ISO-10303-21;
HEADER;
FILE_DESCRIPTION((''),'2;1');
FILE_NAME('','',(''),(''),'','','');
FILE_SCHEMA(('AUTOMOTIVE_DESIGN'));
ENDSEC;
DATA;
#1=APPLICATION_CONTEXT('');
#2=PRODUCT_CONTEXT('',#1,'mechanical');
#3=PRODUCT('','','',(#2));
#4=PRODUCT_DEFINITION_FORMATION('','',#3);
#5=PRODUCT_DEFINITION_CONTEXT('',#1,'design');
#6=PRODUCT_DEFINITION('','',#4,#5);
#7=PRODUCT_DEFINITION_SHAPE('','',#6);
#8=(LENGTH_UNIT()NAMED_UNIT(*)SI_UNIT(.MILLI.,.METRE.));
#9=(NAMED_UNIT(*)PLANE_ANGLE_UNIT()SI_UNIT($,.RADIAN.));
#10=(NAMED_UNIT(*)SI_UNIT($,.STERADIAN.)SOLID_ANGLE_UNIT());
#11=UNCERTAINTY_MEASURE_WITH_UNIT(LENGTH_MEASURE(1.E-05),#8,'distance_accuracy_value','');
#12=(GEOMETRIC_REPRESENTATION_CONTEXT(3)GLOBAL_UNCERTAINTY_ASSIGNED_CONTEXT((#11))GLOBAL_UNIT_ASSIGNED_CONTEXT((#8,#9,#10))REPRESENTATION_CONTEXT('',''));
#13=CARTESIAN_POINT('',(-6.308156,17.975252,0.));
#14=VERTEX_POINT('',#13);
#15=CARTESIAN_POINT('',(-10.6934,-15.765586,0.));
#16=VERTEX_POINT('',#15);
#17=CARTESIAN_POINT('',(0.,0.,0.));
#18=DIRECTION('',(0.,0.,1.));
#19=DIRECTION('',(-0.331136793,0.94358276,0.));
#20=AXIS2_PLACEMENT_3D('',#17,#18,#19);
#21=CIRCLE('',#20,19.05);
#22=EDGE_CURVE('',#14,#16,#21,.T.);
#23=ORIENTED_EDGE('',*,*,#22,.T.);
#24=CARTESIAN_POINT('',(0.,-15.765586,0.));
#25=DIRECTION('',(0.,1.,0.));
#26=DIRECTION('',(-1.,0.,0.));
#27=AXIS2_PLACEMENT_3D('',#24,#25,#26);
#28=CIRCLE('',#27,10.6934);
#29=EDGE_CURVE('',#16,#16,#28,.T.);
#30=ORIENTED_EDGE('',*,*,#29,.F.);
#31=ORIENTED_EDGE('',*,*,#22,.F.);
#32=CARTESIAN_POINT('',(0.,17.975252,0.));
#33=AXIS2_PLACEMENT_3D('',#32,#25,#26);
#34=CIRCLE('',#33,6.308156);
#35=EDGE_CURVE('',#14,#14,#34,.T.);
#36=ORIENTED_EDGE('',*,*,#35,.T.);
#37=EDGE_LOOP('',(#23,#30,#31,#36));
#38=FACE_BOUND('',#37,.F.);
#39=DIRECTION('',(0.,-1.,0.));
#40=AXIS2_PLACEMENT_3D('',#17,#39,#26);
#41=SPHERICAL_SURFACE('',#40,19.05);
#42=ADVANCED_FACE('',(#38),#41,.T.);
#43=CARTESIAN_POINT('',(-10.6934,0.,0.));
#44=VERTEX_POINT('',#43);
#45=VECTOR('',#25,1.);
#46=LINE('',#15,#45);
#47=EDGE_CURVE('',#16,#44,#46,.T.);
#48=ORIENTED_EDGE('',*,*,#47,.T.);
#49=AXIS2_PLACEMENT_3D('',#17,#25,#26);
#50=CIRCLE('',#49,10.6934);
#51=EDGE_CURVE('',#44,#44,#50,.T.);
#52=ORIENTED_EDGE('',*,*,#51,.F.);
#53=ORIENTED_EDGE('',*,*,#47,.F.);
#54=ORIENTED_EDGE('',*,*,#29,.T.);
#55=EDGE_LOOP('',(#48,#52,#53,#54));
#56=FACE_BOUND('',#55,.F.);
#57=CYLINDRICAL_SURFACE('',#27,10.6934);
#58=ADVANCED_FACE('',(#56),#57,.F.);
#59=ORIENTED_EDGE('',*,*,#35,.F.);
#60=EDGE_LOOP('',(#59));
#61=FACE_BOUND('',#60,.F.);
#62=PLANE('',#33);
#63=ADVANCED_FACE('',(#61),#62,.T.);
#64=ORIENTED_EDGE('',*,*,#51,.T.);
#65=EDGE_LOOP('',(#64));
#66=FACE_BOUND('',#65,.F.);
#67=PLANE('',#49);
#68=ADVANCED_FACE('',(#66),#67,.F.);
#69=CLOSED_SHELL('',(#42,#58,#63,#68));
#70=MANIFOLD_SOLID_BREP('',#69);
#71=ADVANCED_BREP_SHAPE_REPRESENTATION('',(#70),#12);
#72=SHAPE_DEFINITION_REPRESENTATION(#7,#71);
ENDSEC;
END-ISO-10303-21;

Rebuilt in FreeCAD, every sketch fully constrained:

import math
import FreeCAD as App
import Part
import Sketcher
Q = App.Units.Quantity

doc = App.newDocument("Part")
body = doc.addObject("PartDesign::Body", "Body")

sketch1 = doc.addObject("Sketcher::SketchObject", "Sketch")
body.addObject(sketch1)
sketch1.AttachmentSupport = (doc.XY_Plane, [""])
sketch1.MapMode = "FlatFace"
sketch1.addGeometry([
    Part.ArcOfCircle(Part.Circle(App.Vector(0, 0, 0), App.Vector(0, 0, 1), 19), math.radians(109), math.radians(236)),
    Part.LineSegment(App.Vector(-11, -16, 0), App.Vector(-11, 0, 0)),
    Part.LineSegment(App.Vector(-11, 0, 0), App.Vector(0, 0, 0)),
    Part.LineSegment(App.Vector(0, 0, 0), App.Vector(0, 18, 0)),
    Part.LineSegment(App.Vector(0, 18, 0), App.Vector(-6, 18, 0)),
], False)
sketch1.addConstraint([
    Sketcher.Constraint("Coincident", 0, 2, 1, 1),
    Sketcher.Constraint("Coincident", 1, 2, 2, 1),
    Sketcher.Constraint("Coincident", 2, 2, 3, 1),
    Sketcher.Constraint("Coincident", 3, 2, 4, 1),
    Sketcher.Constraint("Coincident", 4, 2, 0, 1),
    Sketcher.Constraint("Vertical", 1),
    Sketcher.Constraint("Horizontal", 2),
    Sketcher.Constraint("Vertical", 3),
    Sketcher.Constraint("Horizontal", 4),
    Sketcher.Constraint("Coincident", 0, 3, -1, 1),
    Sketcher.Constraint("Coincident", 2, 2, -1, 1),
    Sketcher.Constraint("Radius", 0, Q("0.75 in")),
    Sketcher.Constraint("DistanceX", 2, 1, 2, 2, Q("0.421 in")),
    Sketcher.Constraint("DistanceX", 4, 2, 4, 1, 6.308156),
])
revolution = doc.addObject("PartDesign::Revolution", "Revolution")
body.addObject(revolution)
revolution.Profile = sketch1
revolution.ReferenceAxis = (sketch1, ["V_Axis"])
revolution.Angle = 360

doc.recompute()
